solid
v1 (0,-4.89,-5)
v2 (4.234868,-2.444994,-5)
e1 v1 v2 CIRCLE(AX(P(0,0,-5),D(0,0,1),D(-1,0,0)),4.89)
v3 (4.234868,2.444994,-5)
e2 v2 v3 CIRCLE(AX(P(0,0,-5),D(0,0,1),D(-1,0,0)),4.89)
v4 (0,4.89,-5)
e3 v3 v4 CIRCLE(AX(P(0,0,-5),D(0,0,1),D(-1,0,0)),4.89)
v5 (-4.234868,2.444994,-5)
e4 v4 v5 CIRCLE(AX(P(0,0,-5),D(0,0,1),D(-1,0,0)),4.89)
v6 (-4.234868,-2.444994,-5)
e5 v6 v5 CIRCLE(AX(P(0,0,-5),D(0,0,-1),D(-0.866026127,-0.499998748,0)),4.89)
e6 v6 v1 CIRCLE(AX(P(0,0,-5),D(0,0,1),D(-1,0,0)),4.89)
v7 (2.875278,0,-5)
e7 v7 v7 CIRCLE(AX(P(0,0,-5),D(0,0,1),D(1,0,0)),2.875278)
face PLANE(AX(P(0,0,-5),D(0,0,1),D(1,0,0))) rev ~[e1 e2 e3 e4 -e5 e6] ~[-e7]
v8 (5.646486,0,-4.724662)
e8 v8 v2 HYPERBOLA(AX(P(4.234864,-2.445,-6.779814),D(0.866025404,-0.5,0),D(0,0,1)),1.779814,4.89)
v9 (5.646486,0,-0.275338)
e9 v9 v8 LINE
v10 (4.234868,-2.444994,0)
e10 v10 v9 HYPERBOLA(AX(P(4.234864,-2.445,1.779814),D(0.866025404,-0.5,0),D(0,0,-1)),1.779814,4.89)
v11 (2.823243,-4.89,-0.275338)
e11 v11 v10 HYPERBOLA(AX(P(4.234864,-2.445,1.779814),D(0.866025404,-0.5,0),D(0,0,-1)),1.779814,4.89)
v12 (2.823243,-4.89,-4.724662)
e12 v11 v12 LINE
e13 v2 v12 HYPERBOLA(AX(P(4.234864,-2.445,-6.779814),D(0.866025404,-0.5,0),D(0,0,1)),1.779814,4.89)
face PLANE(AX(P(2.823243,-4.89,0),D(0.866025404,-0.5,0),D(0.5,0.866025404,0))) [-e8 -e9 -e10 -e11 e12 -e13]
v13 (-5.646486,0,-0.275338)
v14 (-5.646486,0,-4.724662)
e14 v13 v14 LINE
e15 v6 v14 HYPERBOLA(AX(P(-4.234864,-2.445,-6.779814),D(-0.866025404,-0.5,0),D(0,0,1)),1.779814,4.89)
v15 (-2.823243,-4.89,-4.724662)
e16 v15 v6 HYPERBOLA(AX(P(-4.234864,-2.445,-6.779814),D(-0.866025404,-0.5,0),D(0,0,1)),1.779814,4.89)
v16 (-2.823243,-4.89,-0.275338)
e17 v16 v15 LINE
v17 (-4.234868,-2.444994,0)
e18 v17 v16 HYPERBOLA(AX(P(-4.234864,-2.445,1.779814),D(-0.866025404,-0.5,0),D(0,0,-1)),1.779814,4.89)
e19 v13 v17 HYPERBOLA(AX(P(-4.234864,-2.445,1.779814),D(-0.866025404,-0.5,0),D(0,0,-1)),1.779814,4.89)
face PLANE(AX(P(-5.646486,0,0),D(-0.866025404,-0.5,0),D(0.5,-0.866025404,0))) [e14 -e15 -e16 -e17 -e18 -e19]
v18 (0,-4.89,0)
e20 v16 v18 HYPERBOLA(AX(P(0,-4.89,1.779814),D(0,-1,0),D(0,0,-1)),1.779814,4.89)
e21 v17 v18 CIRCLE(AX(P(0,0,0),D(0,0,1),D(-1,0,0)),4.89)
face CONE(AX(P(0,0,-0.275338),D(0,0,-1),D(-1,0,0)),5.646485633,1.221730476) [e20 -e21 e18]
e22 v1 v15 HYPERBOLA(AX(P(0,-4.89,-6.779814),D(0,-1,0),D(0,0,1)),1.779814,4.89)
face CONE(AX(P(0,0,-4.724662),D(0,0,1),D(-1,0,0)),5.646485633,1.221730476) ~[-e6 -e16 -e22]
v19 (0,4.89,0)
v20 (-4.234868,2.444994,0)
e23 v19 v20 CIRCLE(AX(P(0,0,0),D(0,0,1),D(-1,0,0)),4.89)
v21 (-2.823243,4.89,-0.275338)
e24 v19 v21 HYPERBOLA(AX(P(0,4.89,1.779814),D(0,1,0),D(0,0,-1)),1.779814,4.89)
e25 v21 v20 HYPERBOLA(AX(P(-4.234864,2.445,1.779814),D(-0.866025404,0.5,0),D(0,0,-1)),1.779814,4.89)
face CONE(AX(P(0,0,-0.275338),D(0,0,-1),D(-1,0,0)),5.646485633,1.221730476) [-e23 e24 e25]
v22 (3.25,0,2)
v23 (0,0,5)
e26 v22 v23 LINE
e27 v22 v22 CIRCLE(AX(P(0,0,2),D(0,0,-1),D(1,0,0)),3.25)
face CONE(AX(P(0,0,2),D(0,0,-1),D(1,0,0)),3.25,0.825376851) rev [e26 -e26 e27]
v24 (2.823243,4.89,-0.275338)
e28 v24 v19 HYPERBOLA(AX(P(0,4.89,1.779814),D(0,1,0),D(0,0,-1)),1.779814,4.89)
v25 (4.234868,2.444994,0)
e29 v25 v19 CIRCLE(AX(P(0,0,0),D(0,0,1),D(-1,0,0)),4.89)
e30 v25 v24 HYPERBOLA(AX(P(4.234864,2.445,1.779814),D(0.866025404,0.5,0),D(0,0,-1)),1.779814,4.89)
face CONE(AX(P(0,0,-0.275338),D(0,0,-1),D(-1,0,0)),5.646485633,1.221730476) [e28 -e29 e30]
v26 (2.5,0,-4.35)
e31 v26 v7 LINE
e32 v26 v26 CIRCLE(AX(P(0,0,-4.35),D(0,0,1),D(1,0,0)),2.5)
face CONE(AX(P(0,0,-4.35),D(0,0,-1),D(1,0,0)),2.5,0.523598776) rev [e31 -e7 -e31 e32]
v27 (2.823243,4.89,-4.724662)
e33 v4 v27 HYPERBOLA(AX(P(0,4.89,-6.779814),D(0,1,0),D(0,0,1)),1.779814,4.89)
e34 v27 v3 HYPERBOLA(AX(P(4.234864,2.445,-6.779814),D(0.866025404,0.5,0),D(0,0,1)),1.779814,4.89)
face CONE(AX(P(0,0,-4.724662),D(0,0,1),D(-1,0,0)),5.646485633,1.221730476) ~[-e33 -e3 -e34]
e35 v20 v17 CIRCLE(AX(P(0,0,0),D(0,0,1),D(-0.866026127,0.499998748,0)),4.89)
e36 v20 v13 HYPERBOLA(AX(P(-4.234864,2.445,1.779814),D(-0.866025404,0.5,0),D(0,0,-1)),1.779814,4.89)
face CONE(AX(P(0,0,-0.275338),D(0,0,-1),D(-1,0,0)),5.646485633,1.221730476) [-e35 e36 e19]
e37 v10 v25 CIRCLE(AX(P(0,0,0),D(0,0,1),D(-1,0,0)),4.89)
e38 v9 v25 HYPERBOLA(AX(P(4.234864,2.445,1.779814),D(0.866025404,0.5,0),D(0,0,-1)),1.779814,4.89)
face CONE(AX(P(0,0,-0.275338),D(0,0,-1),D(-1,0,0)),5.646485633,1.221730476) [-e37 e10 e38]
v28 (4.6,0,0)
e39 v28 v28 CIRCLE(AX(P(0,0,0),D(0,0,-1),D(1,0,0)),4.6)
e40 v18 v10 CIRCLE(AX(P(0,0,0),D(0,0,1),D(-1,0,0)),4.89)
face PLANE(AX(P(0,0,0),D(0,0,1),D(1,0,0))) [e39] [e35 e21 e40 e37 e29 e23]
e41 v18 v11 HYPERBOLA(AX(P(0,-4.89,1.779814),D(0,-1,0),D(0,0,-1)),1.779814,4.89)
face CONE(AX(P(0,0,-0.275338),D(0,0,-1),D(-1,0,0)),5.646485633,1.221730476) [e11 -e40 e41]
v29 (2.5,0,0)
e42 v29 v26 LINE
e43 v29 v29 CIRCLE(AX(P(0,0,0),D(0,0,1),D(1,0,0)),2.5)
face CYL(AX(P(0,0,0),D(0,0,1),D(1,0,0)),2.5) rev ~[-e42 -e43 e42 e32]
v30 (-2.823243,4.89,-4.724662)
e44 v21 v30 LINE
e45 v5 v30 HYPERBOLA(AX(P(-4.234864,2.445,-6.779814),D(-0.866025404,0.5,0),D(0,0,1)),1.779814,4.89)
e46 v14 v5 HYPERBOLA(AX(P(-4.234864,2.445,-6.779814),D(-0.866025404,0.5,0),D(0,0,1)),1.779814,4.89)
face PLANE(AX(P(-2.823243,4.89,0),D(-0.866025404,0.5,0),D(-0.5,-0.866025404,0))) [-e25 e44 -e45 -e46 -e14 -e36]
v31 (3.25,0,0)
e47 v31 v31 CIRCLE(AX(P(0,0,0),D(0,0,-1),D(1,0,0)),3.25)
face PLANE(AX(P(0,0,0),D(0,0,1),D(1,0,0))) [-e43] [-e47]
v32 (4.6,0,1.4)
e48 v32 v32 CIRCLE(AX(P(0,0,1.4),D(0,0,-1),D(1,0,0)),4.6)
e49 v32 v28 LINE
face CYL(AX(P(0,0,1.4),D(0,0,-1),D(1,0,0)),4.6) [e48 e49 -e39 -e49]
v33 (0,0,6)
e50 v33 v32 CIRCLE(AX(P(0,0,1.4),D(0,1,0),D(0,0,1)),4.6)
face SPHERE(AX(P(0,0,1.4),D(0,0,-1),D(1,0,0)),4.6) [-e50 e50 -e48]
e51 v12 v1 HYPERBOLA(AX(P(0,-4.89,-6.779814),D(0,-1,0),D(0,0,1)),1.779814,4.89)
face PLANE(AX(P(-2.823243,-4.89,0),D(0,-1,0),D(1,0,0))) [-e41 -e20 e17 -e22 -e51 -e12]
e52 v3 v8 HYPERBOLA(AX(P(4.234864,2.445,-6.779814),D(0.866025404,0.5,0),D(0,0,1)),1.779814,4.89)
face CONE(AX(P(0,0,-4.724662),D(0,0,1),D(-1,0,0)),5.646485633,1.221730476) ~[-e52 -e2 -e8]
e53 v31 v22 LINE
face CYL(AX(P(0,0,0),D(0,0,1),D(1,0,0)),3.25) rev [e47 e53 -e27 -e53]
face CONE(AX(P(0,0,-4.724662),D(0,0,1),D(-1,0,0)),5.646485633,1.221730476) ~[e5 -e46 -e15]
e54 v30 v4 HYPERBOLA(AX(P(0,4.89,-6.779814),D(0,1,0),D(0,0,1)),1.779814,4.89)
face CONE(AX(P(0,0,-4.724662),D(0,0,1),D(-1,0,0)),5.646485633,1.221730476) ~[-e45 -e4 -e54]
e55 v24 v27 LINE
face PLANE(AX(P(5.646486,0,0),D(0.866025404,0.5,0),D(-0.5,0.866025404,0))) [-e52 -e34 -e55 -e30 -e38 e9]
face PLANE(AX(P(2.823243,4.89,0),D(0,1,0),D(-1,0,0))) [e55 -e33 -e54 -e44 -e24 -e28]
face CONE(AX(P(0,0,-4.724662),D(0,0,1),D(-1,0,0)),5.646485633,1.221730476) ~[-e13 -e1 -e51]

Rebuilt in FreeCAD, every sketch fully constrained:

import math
import FreeCAD as App
import Part
import Sketcher
from FreeCAD import Vector
Q = App.Units.Quantity


def edges_at(feature, points):
    """Names of the edges that pass closest to the given points."""
    edges = feature.Shape.Edges
    near = lambda p: min(range(len(edges)), key=lambda i: edges[i].distToShape(Part.Vertex(*p))[0])
    return sorted({f"Edge{near(p) + 1}" for p in points})


def add_polygon(sketch, points):
    """Adds a closed chain of lines whose ends are joined by coincident constraints."""
    first, n = sketch.GeometryCount, len(points)
    for a, b in zip(points, points[1:] + points[:1]):
        sketch.addGeometry(Part.LineSegment(App.Vector(*a, 0), App.Vector(*b, 0)), False)
    for i in range(n):
        sketch.addConstraint(Sketcher.Constraint("Coincident", first + i, 2, first + (i + 1) % n, 1))

doc = App.newDocument("Part")
body = doc.addObject("PartDesign::Body", "Body")

# Sketch on XY plane
sketch1 = body.newObject("Sketcher::SketchObject", "Sketch")
sketch1.AttachmentSupport = (doc.getObject("XY_Plane"), [""])
sketch1.MapMode = "FlatFace"
add_polygon(sketch1, [(5.6, 0), (2.8, 4.9), (-2.8, 4.9), (-5.6, 0), (-2.8, -4.9), (2.8, -4.9)])  # lines 0-5
sketch1.addGeometry(Part.Circle(Vector(0, 0, 0), Vector(0, 0, 1), 2.5), False)  # 6
sketch1.addConstraint(Sketcher.Constraint("Horizontal", 1))
sketch1.addConstraint(Sketcher.Constraint("Horizontal", 4))
sketch1.addConstraint(Sketcher.Constraint("Coincident", 6, 3, -1, 1))
sketch1.addConstraint(Sketcher.Constraint("Symmetric", 0, 2, 3, 2, -1, 1))
sketch1.addConstraint(Sketcher.Constraint("Symmetric", 2, 2, 5, 2, -1, 1))
sketch1.addConstraint(Sketcher.Constraint("PointOnObject", 2, 2, -1))
sketch1.addConstraint(Sketcher.Constraint("Parallel", 2, 5))
sketch1.addConstraint(Sketcher.Constraint("Vertical", 1, 2, 3, 2))
sketch1.addConstraint(Sketcher.Constraint("Diameter", 6, Q("5 mm")))
sketch1.addConstraint(Sketcher.Constraint("Angle", 0, Q("120 deg")))
sketch1.addConstraint(Sketcher.Constraint("DistanceY", -1, 1, 0, 2, Q("4.89 mm")))
sketch1.addConstraint(Sketcher.Constraint("DistanceX", 1, 2, 1, 1, Q("5.646486 mm")))
pad1 = body.newObject("PartDesign::Pad", "Pad")
pad1.Profile = sketch1
pad1.Length = 5
pad1.Reversed = True

# Sketch on XZ plane
sketch2 = body.newObject("Sketcher::SketchObject", "Sketch001")
sketch2.AttachmentSupport = (doc.getObject("XZ_Plane"), [""])
sketch2.MapMode = "FlatFace"
add_polygon(sketch2, [(-4.89, -5), (-5.65, -5), (-5.65, -4.72)])  # lines 0-2
add_polygon(sketch2, [(-4.89, 0), (-5.65, -0.28), (-5.65, 0)])  # lines 3-5
sketch2.addConstraint(Sketcher.Constraint("Horizontal", 0))
sketch2.addConstraint(Sketcher.Constraint("Vertical", 1))
sketch2.addConstraint(Sketcher.Constraint("Vertical", 4))
sketch2.addConstraint(Sketcher.Constraint("Horizontal", 5))
sketch2.addConstraint(Sketcher.Constraint("PointOnObject", 4, 2, -1))
sketch2.addConstraint(Sketcher.Constraint("Vertical", 1, 2, 3, 2))
sketch2.addConstraint(Sketcher.Constraint("Vertical", 2, 2, 5, 2))
sketch2.addConstraint(Sketcher.Constraint("Equal", 1, 4))
sketch2.addConstraint(Sketcher.Constraint("Angle", 2, Q("-20 deg")))
sketch2.addConstraint(Sketcher.Constraint("DistanceY", 0, 2, -1, 1, Q("5 mm")))
sketch2.addConstraint(Sketcher.Constraint("DistanceX", 2, 2, -1, 1, Q("4.89 mm")))
sketch2.addConstraint(Sketcher.Constraint("DistanceY", 1, 1, 1, 2, Q("0.275338 mm")))
groove = body.newObject("PartDesign::Groove", "Groove")
groove.Profile = sketch2
groove.ReferenceAxis = (sketch2, ["V_Axis"])
groove.Angle = 360

# Sketch on XZ plane
sketch3 = body.newObject("Sketcher::SketchObject", "Sketch002")
sketch3.AttachmentSupport = (doc.getObject("XZ_Plane"), [""])
sketch3.MapMode = "FlatFace"
sketch3.addGeometry(Part.LineSegment(Vector(4.6, 1.4, 0), Vector(4.6, 0, 0)), False)
sketch3.addGeometry(Part.LineSegment(Vector(4.6, 0, 0), Vector(3.2, 0, 0)), False)
sketch3.addGeometry(Part.LineSegment(Vector(3.2, 0, 0), Vector(3.2, 2, 0)), False)
sketch3.addGeometry(Part.LineSegment(Vector(3.2, 2, 0), Vector(0, 5, 0)), False)
sketch3.addGeometry(Part.LineSegment(Vector(0, 5, 0), Vector(0, 6, 0)), False)
sketch3.addGeometry(Part.ArcOfCircle(Part.Circle(Vector(0, 1.4, 0), Vector(0, 0, 1), 4.6), math.radians(0), math.radians(90)), False)
sketch3.addConstraint(Sketcher.Constraint("Coincident", 0, 2, 1, 1))
sketch3.addConstraint(Sketcher.Constraint("Coincident", 1, 2, 2, 1))
sketch3.addConstraint(Sketcher.Constraint("Coincident", 2, 2, 3, 1))
sketch3.addConstraint(Sketcher.Constraint("Coincident", 3, 2, 4, 1))
sketch3.addConstraint(Sketcher.Constraint("Coincident", 4, 2, 5, 2))
sketch3.addConstraint(Sketcher.Constraint("Tangent", 5, 1, 0, 1))
sketch3.addConstraint(Sketcher.Constraint("Vertical", 0))
sketch3.addConstraint(Sketcher.Constraint("Horizontal", 1))
sketch3.addConstraint(Sketcher.Constraint("Vertical", 2))
sketch3.addConstraint(Sketcher.Constraint("Vertical", 4))
sketch3.addConstraint(Sketcher.Constraint("PointOnObject", 5, 3, -2))
sketch3.addConstraint(Sketcher.Constraint("PointOnObject", 0, 2, -1))
sketch3.addConstraint(Sketcher.Constraint("PointOnObject", 3, 2, -2))
sketch3.addConstraint(Sketcher.Constraint("Radius", 5, Q("4.6 mm")))
sketch3.addConstraint(Sketcher.Constraint("DistanceY", 2, 1, 2, 2, Q("2 mm")))
sketch3.addConstraint(Sketcher.Constraint("DistanceY", 4, 1, 4, 2, Q("1 mm")))
sketch3.addConstraint(Sketcher.Constraint("DistanceY", 0, 2, 0, 1, Q("1.4 mm")))
sketch3.addConstraint(Sketcher.Constraint("DistanceX", 1, 2, 1, 1, Q("1.35 mm")))
revolution = body.newObject("PartDesign::Revolution", "Revolution")
revolution.Profile = sketch3
revolution.ReferenceAxis = (sketch3, ["V_Axis"])
revolution.Angle = 360
doc.recompute()

chamfer = body.newObject("PartDesign::Chamfer", "Chamfer")
chamfer.Base = (revolution, edges_at(revolution, [(-2.5, 0, -5)]))
chamfer.ChamferType = "Two distances"
chamfer.Size = 0.65
chamfer.Size2 = 0.375278
chamfer.FlipDirection = True

doc.recompute()
